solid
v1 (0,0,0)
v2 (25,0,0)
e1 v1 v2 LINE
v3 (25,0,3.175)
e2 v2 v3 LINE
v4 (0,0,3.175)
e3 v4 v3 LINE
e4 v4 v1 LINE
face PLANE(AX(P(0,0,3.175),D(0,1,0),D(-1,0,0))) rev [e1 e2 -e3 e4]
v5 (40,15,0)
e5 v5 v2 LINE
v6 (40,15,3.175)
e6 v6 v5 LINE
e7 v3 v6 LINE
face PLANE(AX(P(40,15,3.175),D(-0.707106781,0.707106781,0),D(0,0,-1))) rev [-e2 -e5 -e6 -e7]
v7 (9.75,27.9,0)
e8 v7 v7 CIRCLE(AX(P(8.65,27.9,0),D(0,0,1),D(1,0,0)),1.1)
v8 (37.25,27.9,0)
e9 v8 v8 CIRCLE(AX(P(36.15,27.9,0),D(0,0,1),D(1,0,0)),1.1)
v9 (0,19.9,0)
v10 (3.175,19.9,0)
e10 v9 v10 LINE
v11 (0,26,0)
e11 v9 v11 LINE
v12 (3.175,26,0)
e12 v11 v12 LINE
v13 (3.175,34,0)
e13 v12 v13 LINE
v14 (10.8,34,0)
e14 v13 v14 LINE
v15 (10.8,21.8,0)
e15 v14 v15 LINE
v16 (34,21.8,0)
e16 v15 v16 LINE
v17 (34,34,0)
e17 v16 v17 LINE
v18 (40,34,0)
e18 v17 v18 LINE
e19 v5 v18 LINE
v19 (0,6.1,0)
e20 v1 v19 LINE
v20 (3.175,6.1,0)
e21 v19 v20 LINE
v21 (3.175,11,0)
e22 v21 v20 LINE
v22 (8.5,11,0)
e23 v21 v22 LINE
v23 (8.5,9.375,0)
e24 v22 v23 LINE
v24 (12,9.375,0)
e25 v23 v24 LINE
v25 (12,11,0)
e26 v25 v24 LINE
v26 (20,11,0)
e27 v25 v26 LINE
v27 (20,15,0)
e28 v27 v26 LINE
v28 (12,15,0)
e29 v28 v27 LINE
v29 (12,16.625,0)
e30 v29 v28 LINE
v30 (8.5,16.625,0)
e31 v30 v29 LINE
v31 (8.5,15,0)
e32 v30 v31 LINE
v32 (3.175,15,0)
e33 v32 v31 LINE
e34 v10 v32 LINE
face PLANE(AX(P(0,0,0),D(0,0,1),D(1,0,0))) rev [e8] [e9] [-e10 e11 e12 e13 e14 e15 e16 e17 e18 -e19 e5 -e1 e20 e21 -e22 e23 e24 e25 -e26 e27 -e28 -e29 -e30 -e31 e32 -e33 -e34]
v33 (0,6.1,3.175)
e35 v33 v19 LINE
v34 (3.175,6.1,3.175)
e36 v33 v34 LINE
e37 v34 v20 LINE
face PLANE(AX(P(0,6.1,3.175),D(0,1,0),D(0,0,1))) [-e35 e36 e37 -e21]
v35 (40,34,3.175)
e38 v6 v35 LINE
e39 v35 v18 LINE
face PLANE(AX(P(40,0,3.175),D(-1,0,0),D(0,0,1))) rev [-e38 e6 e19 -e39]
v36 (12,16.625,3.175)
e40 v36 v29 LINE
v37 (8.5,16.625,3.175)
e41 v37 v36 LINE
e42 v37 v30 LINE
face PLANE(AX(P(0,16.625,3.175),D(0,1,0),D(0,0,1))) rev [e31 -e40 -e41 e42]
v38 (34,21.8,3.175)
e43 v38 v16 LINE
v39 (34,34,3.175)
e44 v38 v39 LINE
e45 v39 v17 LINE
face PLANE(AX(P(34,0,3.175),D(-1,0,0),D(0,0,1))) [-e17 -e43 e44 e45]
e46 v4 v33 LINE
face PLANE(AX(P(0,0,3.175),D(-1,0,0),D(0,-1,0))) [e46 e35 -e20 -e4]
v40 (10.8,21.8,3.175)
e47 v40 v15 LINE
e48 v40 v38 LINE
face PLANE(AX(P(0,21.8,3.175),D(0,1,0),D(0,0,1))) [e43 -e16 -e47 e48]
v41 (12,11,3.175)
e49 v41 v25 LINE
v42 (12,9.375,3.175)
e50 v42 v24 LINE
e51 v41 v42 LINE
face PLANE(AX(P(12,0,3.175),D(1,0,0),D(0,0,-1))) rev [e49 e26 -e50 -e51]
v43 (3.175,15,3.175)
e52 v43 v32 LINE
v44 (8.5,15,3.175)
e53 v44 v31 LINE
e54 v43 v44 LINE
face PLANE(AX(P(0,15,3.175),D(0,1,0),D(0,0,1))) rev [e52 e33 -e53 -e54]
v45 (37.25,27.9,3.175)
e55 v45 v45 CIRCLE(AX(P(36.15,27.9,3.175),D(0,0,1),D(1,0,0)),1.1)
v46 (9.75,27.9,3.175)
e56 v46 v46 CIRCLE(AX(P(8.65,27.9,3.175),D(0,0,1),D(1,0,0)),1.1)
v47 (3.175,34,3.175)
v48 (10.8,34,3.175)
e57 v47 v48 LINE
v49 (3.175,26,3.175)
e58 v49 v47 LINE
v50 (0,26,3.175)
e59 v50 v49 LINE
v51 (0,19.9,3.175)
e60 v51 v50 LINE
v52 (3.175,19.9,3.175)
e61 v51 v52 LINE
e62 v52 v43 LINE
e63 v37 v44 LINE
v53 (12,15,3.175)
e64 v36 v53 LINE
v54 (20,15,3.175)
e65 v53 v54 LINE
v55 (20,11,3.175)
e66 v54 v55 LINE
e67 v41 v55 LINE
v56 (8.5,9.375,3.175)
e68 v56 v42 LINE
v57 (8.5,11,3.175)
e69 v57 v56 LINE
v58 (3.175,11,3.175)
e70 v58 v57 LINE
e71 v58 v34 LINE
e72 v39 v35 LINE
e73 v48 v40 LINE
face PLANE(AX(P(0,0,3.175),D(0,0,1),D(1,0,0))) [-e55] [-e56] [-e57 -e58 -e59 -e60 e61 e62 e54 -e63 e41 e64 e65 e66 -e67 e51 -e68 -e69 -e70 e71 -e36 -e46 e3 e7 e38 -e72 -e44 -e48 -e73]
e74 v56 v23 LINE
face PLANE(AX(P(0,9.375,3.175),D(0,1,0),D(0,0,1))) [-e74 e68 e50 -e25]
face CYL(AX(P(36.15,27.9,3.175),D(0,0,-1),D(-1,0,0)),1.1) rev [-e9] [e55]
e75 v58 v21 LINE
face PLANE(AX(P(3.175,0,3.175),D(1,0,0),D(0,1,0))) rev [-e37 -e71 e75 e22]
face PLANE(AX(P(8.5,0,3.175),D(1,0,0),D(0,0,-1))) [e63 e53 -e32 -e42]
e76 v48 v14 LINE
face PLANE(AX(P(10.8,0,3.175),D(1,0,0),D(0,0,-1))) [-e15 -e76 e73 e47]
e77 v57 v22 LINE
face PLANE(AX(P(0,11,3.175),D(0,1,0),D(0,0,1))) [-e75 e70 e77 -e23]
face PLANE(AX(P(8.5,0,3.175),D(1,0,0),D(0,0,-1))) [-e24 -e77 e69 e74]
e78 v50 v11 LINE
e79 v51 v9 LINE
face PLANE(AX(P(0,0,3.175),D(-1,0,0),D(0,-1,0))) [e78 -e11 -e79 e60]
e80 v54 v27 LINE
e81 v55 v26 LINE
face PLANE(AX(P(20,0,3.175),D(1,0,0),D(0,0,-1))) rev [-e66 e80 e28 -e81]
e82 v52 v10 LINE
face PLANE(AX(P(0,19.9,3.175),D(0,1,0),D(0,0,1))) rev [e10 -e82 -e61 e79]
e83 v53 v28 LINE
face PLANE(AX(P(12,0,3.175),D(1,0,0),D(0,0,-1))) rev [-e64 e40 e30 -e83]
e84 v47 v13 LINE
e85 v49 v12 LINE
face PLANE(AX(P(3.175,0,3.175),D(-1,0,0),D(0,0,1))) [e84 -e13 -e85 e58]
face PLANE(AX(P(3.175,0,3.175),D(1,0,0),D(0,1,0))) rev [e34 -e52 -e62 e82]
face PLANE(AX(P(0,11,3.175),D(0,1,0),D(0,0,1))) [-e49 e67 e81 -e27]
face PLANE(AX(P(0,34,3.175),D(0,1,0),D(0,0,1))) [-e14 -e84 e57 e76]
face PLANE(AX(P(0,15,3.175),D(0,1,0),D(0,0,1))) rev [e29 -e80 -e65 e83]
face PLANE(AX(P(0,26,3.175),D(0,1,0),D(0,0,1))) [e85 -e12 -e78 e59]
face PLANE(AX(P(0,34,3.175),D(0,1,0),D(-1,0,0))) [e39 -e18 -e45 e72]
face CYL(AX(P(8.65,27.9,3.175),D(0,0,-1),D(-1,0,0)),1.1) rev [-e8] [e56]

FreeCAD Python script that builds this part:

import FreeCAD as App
import Part
import Sketcher
from FreeCAD import Vector
Q = App.Units.Quantity


def edges_at(feature, points):
    """Names of the edges that pass closest to the given points."""
    edges = feature.Shape.Edges
    near = lambda p: min(range(len(edges)), key=lambda i: edges[i].distToShape(Part.Vertex(*p))[0])
    return sorted({f"Edge{near(p) + 1}" for p in points})


def add_polygon(sketch, points):
    """Adds a closed chain of lines whose ends are joined by coincident constraints."""
    first, n = sketch.GeometryCount, len(points)
    for a, b in zip(points, points[1:] + points[:1]):
        sketch.addGeometry(Part.LineSegment(App.Vector(*a, 0), App.Vector(*b, 0)), False)
    for i in range(n):
        sketch.addConstraint(Sketcher.Constraint("Coincident", first + i, 2, first + (i + 1) % n, 1))

doc = App.newDocument("Part")
body = doc.addObject("PartDesign::Body", "Body")

# Sketch on XY plane
sketch1 = doc.addObject("Sketcher::SketchObject", "Sketch")
body.addObject(sketch1)
sketch1.AttachmentSupport = (doc.XY_Plane, [""])
sketch1.MapMode = "FlatFace"
add_polygon(sketch1, [(10.8, 21.8), (10.8, 34), (3.175, 34), (3.175, 26), (0, 26), (0, 19.9), (3.175, 19.9), (3.175, 15), (8.5, 15), (8.5, 16.625), (12, 16.625), (12, 15), (20, 15), (20, 11), (12, 11), (12, 9.375), (8.5, 9.375), (8.5, 11), (3.175, 11), (3.175, 6.1), (0, 6.1), (0, 0), (40, 0), (40, 34), (34, 34), (34, 21.8)])  # lines 0-25
sketch1.addGeometry(Part.Circle(Vector(8.65, 27.9, 0), Vector(0, 0, 1), 1.1), False)  # 26
sketch1.addGeometry(Part.Circle(Vector(36.15, 27.9, 0), Vector(0, 0, 1), 1.1), False)  # 27
sketch1.addConstraint([
    Sketcher.Constraint("Vertical", 0),
    Sketcher.Constraint("Horizontal", 1),
    Sketcher.Constraint("Vertical", 2),
    Sketcher.Constraint("Horizontal", 3),
    Sketcher.Constraint("Vertical", 4),
    Sketcher.Constraint("Horizontal", 5),
    Sketcher.Constraint("Vertical", 6),
    Sketcher.Constraint("Horizontal", 7),
    Sketcher.Constraint("Vertical", 8),
    Sketcher.Constraint("Horizontal", 9),
    Sketcher.Constraint("Vertical", 10),
    Sketcher.Constraint("Horizontal", 11),
    Sketcher.Constraint("Vertical", 12),
    Sketcher.Constraint("Horizontal", 13),
    Sketcher.Constraint("Vertical", 14),
    Sketcher.Constraint("Horizontal", 15),
    Sketcher.Constraint("Vertical", 16),
    Sketcher.Constraint("Horizontal", 17),
    Sketcher.Constraint("Vertical", 18),
    Sketcher.Constraint("Horizontal", 19),
    Sketcher.Constraint("Vertical", 20),
    Sketcher.Constraint("Horizontal", 21),
    Sketcher.Constraint("Vertical", 22),
    Sketcher.Constraint("Horizontal", 23),
    Sketcher.Constraint("Vertical", 24),
    Sketcher.Constraint("Horizontal", 25),
    Sketcher.Constraint("Coincident", 20, 2, -1, 1),
    Sketcher.Constraint("Equal", 26, 27),
    Sketcher.Constraint("PointOnObject", 3, 2, -2),
    Sketcher.Constraint("Horizontal", 26, 3, 27, 3),
    Sketcher.Constraint("Horizontal", 7, 2, 10, 2),
    Sketcher.Constraint("Horizontal", 13, 2, 16, 2),
    Sketcher.Constraint("Horizontal", 1, 2, 22, 2),
    Sketcher.Constraint("Vertical", 2, 2, 5, 2),
    Sketcher.Constraint("Vertical", 10, 2, 13, 2),
    Sketcher.Constraint("Vertical", 8, 2, 15, 2),
    Sketcher.Constraint("Vertical", 6, 2, 17, 2),
    Sketcher.Constraint("Equal", 13, 2),
    Sketcher.Constraint("Equal", 10, 14),
    Sketcher.Constraint("Equal", 6, 18),
    Sketcher.Constraint("Equal", 4, 20),
    Sketcher.Constraint("Diameter", 26, Q("2.2 mm")),
    Sketcher.Constraint("DistanceX", 11, 1, 11, 2, Q("8 mm")),
    Sketcher.Constraint("DistanceX", 21, 1, 21, 2, Q("40 mm")),
    Sketcher.Constraint("DistanceX", 23, 2, 23, 1, Q("6 mm")),
    Sketcher.Constraint("DistanceY", 12, 2, 12, 1, Q("4 mm")),
    Sketcher.Constraint("DistanceY", 22, 1, 22, 2, Q("34 mm")),
    Sketcher.Constraint("DistanceX", 9, 1, 9, 2, Q("3.5 mm")),
    Sketcher.Constraint("DistanceX", 25, 2, 25, 1, Q("23.2 mm")),
    Sketcher.Constraint("DistanceY", 0, 1, 0, 2, Q("12.2 mm")),
    Sketcher.Constraint("DistanceY", 4, 2, 4, 1, Q("6.1 mm")),
    Sketcher.Constraint("DistanceX", -1, 1, 9, 2, Q("12 mm")),
    Sketcher.Constraint("DistanceY", 4, 2, 26, 3, Q("8 mm")),
    Sketcher.Constraint("DistanceX", 26, 3, 27, 3, Q("27.5 mm")),
    Sketcher.Constraint("DistanceX", 1, 2, 1, 1, Q("7.625 mm")),
    Sketcher.Constraint("DistanceY", 8, 1, 8, 2, Q("1.625 mm")),
    Sketcher.Constraint("DistanceX", -1, 1, 26, 3, Q("8.65 mm")),
])
pad1 = doc.addObject("PartDesign::Pad", "Pad")
body.addObject(pad1)
pad1.Profile = sketch1
pad1.Length = 3.175
doc.recompute()

chamfer = doc.addObject("PartDesign::Chamfer", "Chamfer")
body.addObject(chamfer)
chamfer.Base = (pad1, edges_at(pad1, [(40, 0, 1.587)]))
chamfer.Size = 15

doc.recompute()
